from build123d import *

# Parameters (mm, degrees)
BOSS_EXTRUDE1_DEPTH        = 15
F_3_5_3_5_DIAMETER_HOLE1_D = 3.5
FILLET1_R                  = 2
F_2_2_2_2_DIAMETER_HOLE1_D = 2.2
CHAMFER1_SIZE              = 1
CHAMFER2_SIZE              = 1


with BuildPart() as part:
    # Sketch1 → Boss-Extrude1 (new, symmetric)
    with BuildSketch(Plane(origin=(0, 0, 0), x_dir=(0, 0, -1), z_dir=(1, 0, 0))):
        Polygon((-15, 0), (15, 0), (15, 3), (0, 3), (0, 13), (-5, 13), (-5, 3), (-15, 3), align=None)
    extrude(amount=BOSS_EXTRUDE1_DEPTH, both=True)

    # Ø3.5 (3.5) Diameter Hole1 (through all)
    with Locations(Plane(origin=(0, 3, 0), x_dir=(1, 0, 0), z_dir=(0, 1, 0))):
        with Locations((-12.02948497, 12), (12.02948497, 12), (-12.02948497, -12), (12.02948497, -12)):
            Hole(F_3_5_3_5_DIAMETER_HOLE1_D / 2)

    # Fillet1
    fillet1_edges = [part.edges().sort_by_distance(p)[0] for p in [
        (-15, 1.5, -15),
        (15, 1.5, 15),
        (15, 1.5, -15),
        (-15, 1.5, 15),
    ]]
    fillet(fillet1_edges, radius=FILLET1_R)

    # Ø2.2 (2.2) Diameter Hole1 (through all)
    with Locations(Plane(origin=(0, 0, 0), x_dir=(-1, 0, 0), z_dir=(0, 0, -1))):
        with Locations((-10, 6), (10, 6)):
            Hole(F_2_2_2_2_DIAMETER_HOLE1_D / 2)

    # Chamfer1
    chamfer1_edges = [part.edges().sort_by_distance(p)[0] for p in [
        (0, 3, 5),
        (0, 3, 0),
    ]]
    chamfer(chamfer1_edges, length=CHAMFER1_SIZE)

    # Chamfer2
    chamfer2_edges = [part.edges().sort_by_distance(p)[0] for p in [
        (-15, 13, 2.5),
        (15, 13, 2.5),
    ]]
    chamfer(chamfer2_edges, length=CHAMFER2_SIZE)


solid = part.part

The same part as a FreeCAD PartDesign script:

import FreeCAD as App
import Part
import Sketcher
from FreeCAD import Vector


def edges_at(feature, points):
    """Names of the edges that pass closest to the given points."""
    edges = feature.Shape.Edges
    near = lambda p: min(range(len(edges)), key=lambda i: edges[i].distToShape(Part.Vertex(*p))[0])
    return sorted({f"Edge{near(p) + 1}" for p in points})


def add_polygon(sketch, points):
    """Adds a closed chain of lines whose ends are joined by coincident constraints."""
    first, n = sketch.GeometryCount, len(points)
    for a, b in zip(points, points[1:] + points[:1]):
        sketch.addGeometry(Part.LineSegment(App.Vector(*a, 0), App.Vector(*b, 0)), False)
    for i in range(n):
        sketch.addConstraint(Sketcher.Constraint("Coincident", first + i, 2, first + (i + 1) % n, 1))

doc = App.newDocument("Part")
body = doc.addObject("PartDesign::Body", "Body")

sketch1 = body.newObject("Sketcher::SketchObject", "Sketch")
sketch1.AttachmentSupport = (doc.getObject("YZ_Plane"), [""])
sketch1.MapMode = "FlatFace"
add_polygon(sketch1, [(0, 15), (0, -15), (3, -15), (3, 0), (13, 0), (13, 5), (3, 5), (3, 15)])
sketch1.addConstraint([
    Sketcher.Constraint("Vertical", 0),
    Sketcher.Constraint("Horizontal", 1),
    Sketcher.Constraint("Vertical", 2),
    Sketcher.Constraint("Horizontal", 3),
    Sketcher.Constraint("Vertical", 4),
    Sketcher.Constraint("Horizontal", 5),
    Sketcher.Constraint("Vertical", 6),
    Sketcher.Constraint("Horizontal", 7),
    Sketcher.Constraint("Symmetric", 0, 2, 7, 2, -1, 1),
    Sketcher.Constraint("PointOnObject", 2, 2, -1),
    Sketcher.Constraint("Vertical", 2, 2, 5, 2),
    Sketcher.Constraint("Equal", 5, 6),
    Sketcher.Constraint("DistanceX", 1, 1, 1, 2, 3.0),
    Sketcher.Constraint("DistanceX", 3, 1, 3, 2, 10.0),
    Sketcher.Constraint("DistanceY", 0, 2, 0, 1, 30.0),
])
pad1 = body.newObject("PartDesign::Pad", "Pad")
pad1.Profile = sketch1
pad1.Length = 30
pad1.Midplane = True

sketch2 = body.newObject("Sketcher::SketchObject", "Sketch001")
sketch2.AttachmentSupport = (doc.getObject("XZ_Plane"), [""])
sketch2.MapMode = "FlatFace"
sketch2.AttachmentOffset = App.Placement(Vector(0, 0, -3), App.Rotation())
sketch2.addGeometry([
    Part.Circle(Vector(-12, -12, 0), Vector(0, 0, 1), 1.8),
    Part.Circle(Vector(12, -12, 0), Vector(0, 0, 1), 1.8),
    Part.Circle(Vector(-12, 12, 0), Vector(0, 0, 1), 1.8),
    Part.Circle(Vector(12, 12, 0), Vector(0, 0, 1), 1.8),
], False)
sketch2.addConstraint([
    Sketcher.Constraint("Equal", 0, 1),
    Sketcher.Constraint("Equal", 1, 2),
    Sketcher.Constraint("Equal", 2, 3),
    Sketcher.Constraint("Symmetric", 1, 3, 2, 3, -1, 1),
    Sketcher.Constraint("Symmetric", 0, 3, 3, 3, -1, 1),
    Sketcher.Constraint("Symmetric", 0, 3, 1, 3, -2),
    Sketcher.Constraint("Diameter", 0, 3.5),
    Sketcher.Constraint("DistanceY", 0, 3, -1, 1, 12.0),
    Sketcher.Constraint("DistanceX", 0, 3, 1, 3, 24.05897),
])
doc.recompute()
hole = body.newObject("PartDesign::Hole", "Hole")
hole.Profile = sketch2
hole.ThreadType = "None"
hole.Diameter = 3.5
hole.DepthType = "ThroughAll"
hole.Reversed = True
doc.recompute()

fillet = body.newObject("PartDesign::Fillet", "Fillet")
fillet.Base = (hole, edges_at(hole, [
    (-15, 1.5, -15),
    (15, 1.5, 15),
    (15, 1.5, -15),
    (-15, 1.5, 15),
]))
fillet.Radius = 2

sketch3 = body.newObject("Sketcher::SketchObject", "Sketch002")
sketch3.AttachmentSupport = (doc.getObject("XY_Plane"), [""])
sketch3.MapMode = "FlatFace"
sketch3.addGeometry([
    Part.Circle(Vector(10, 6, 0), Vector(0, 0, 1), 1.1),
    Part.Circle(Vector(-10, 6, 0), Vector(0, 0, 1), 1.1),
], False)
sketch3.addConstraint([
    Sketcher.Constraint("Equal", 0, 1),
    Sketcher.Constraint("Symmetric", 0, 3, 1, 3, -2),
    Sketcher.Constraint("Diameter", 0, 2.2),
    Sketcher.Constraint("DistanceX", -1, 1, 0, 3, 10.0),
    Sketcher.Constraint("DistanceY", -1, 1, 0, 3, 6.0),
])
doc.recompute()
hole2 = body.newObject("PartDesign::Hole", "Hole001")
hole2.Profile = sketch3
hole2.ThreadType = "None"
hole2.Diameter = 2.2
hole2.DepthType = "ThroughAll"
hole2.Reversed = True
doc.recompute()

chamfer = body.newObject("PartDesign::Chamfer", "Chamfer")
chamfer.Base = (hole2, edges_at(hole2, [(0, 3, 5), (0, 3, 0)]))
chamfer.Size = 1
doc.recompute()

chamfer2 = body.newObject("PartDesign::Chamfer", "Chamfer001")
chamfer2.Base = (chamfer, edges_at(chamfer, [(-15, 13, 2.5), (15, 13, 2.5)]))
chamfer2.Size = 1

doc.recompute()
